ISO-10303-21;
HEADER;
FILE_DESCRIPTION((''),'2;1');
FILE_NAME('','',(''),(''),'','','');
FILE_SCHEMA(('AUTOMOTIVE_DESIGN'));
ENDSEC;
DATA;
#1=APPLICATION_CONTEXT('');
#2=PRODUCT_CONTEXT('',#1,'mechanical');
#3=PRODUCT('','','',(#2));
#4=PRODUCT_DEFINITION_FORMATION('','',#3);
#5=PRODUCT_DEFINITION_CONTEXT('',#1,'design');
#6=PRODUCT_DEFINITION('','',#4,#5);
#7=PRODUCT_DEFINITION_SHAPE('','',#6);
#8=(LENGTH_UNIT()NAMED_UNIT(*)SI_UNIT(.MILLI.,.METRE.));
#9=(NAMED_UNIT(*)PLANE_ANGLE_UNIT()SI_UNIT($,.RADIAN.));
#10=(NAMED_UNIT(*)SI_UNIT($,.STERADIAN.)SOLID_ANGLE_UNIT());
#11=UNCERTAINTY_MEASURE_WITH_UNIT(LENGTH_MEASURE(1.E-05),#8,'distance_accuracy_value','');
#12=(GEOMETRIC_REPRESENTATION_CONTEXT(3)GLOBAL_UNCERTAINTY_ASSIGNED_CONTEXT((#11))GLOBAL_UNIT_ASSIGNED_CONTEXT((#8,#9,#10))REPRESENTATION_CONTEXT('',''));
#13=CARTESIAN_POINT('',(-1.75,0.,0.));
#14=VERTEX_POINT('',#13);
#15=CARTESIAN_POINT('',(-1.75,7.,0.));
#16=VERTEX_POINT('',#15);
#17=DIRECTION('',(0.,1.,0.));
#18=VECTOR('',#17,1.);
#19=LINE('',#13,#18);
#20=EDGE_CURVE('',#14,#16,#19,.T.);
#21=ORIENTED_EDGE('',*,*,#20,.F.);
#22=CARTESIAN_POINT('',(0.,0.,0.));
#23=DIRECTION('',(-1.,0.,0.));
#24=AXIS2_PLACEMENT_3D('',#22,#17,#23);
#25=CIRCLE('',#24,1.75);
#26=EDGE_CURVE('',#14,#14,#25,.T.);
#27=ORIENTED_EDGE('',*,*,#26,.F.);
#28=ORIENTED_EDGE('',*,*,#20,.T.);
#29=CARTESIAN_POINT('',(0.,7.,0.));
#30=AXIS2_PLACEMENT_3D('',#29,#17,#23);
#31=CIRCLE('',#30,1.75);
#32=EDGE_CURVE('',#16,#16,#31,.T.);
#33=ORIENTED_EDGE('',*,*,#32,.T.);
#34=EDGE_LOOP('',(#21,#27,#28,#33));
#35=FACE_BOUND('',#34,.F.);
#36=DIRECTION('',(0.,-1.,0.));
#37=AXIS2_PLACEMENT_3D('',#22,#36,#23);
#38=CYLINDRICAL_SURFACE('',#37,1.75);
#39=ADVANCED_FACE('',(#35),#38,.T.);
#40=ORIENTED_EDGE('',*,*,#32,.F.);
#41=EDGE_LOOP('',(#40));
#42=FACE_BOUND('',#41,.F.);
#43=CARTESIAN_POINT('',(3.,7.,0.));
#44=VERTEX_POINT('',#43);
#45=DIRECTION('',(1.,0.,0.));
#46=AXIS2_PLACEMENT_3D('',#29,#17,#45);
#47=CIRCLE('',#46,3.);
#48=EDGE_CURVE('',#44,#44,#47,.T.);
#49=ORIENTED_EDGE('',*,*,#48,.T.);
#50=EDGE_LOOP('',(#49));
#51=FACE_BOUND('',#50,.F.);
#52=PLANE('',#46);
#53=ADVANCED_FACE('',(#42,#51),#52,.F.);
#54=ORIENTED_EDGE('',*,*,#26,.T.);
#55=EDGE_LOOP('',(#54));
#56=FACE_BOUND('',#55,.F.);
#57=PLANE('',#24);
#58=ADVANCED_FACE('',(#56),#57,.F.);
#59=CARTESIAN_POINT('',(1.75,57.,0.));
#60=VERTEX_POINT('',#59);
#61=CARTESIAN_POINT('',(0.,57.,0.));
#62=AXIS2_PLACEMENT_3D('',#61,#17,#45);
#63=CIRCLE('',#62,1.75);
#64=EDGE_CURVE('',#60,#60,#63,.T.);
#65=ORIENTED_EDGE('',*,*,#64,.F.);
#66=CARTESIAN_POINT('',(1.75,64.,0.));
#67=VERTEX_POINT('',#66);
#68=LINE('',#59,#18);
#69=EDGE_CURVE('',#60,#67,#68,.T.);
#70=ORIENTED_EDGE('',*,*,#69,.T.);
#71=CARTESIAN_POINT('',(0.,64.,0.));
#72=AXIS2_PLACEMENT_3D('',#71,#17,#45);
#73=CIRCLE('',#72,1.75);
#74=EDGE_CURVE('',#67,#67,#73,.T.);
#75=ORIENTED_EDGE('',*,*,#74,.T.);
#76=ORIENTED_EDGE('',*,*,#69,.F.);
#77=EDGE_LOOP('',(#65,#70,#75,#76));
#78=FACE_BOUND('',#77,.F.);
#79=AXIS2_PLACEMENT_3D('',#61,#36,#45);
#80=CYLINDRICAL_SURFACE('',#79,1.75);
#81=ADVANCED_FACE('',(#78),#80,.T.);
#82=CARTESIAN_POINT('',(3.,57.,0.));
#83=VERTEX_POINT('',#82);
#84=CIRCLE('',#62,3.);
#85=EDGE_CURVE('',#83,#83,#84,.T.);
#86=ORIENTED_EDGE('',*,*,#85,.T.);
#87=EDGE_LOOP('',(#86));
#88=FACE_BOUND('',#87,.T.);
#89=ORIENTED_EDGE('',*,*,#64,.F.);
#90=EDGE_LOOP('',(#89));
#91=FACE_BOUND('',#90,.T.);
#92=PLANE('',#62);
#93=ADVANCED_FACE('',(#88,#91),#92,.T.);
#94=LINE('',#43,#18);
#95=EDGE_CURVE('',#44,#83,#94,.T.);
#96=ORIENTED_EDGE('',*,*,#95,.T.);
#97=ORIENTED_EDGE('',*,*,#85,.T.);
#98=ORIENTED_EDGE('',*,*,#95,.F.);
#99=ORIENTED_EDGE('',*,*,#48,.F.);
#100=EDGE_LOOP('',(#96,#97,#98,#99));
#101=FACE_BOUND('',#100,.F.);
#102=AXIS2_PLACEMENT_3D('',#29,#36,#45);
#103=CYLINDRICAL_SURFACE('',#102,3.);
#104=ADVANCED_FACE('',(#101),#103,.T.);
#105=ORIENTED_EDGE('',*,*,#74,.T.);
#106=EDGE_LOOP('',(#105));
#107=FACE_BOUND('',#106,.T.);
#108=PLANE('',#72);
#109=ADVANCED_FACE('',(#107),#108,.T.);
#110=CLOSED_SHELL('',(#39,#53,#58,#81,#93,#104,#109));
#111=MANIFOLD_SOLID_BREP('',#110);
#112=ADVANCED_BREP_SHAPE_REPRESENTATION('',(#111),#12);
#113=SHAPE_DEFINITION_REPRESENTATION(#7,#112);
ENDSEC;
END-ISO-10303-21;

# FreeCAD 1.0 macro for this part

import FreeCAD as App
import Part
import Sketcher
from FreeCAD import Vector
Q = App.Units.Quantity

doc = App.newDocument("Part")
params = doc.addObject("Spreadsheet::Sheet", "Params")
for row, (alias, value) in enumerate([
    ("sketch1_diameter", "3.5 mm"),
    ("pad1_length", "7 mm"),
    ("sketch2_diameter", "6 mm"),
    ("pad2_length", "50 mm"),
    ("sketch3_diameter", "3.5 mm"),
    ("pad3_length", "7 mm"),
], start=1):
    params.set(f"A{row}", alias)
    params.set(f"B{row}", "=" + value)
    params.setAlias(f"B{row}", alias)

body = doc.addObject("PartDesign::Body", "Body")

# Sketch on XZ plane
sketch1 = doc.addObject("Sketcher::SketchObject", "Sketch")
body.addObject(sketch1)
sketch1.AttachmentSupport = (doc.XZ_Plane, [""])
sketch1.MapMode = "FlatFace"
sketch1.addGeometry(Part.Circle(Vector(0, 0, 0), Vector(0, 0, 1), 1.75), False)
sketch1.addConstraint([
    Sketcher.Constraint("Coincident", 0, 3, -1, 1),
    Sketcher.Constraint("Diameter", 0, Q("3.5 mm")),
])
sketch1.setExpression("Constraints[1]", "Params.sketch1_diameter")
pad1 = doc.addObject("PartDesign::Pad", "Pad")
body.addObject(pad1)
pad1.Profile = sketch1
pad1.setExpression("Length", "Params.pad1_length")
pad1.Reversed = True

# Sketch on XZ plane
sketch2 = doc.addObject("Sketcher::SketchObject", "Sketch001")
body.addObject(sketch2)
sketch2.AttachmentSupport = (doc.XZ_Plane, [""])
sketch2.MapMode = "FlatFace"
sketch2.AttachmentOffset = App.Placement(Vector(0, 0, -7), App.Rotation())
sketch2.addGeometry(Part.Circle(Vector(0, 0, 0), Vector(0, 0, 1), 3), False)
sketch2.addConstraint([
    Sketcher.Constraint("Coincident", 0, 3, -1, 1),
    Sketcher.Constraint("Diameter", 0, Q("6 mm")),
])
sketch2.setExpression("Constraints[1]", "Params.sketch2_diameter")
pad2 = doc.addObject("PartDesign::Pad", "Pad001")
body.addObject(pad2)
pad2.Profile = sketch2
pad2.setExpression("Length", "Params.pad2_length")
pad2.Reversed = True

# Sketch on XZ plane
sketch3 = doc.addObject("Sketcher::SketchObject", "Sketch002")
body.addObject(sketch3)
sketch3.AttachmentSupport = (doc.XZ_Plane, [""])
sketch3.MapMode = "FlatFace"
sketch3.AttachmentOffset = App.Placement(Vector(0, 0, -57), App.Rotation())
sketch3.addGeometry(Part.Circle(Vector(0, 0, 0), Vector(0, 0, 1), 1.75), False)
sketch3.addConstraint([
    Sketcher.Constraint("Coincident", 0, 3, -1, 1),
    Sketcher.Constraint("Diameter", 0, Q("3.5 mm")),
])
sketch3.setExpression("Constraints[1]", "Params.sketch3_diameter")
pad3 = doc.addObject("PartDesign::Pad", "Pad002")
body.addObject(pad3)
pad3.Profile = sketch3
pad3.setExpression("Length", "Params.pad3_length")
pad3.Reversed = True

doc.recompute()
